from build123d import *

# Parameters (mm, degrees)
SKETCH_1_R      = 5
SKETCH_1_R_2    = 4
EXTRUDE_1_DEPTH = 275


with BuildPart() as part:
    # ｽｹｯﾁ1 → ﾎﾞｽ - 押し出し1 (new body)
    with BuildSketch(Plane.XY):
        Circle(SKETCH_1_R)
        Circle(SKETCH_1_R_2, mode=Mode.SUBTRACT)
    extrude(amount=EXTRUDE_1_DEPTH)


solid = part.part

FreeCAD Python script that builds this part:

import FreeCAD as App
import Part
import Sketcher
from FreeCAD import Vector
Q = App.Units.Quantity

doc = App.newDocument("Part")
body = doc.addObject("PartDesign::Body", "Body")

# Sketch on XY plane
sketch1 = body.newObject("Sketcher::SketchObject", "Sketch")
sketch1.AttachmentSupport = (doc.getObject("XY_Plane"), [""])
sketch1.MapMode = "FlatFace"
sketch1.addGeometry([
    Part.Circle(Vector(0, 0, 0), Vector(0, 0, 1), 5),
    Part.Circle(Vector(0, 0, 0), Vector(0, 0, 1), 4),
], False)
sketch1.addConstraint([
    Sketcher.Constraint("Coincident", 0, 3, -1, 1),
    Sketcher.Constraint("Coincident", 1, 3, -1, 1),
    Sketcher.Constraint("Diameter", 0, Q("10 mm")),
    Sketcher.Constraint("Diameter", 1, Q("8 mm")),
])
pad1 = body.newObject("PartDesign::Pad", "Pad")
pad1.Profile = sketch1
pad1.Length = 275

doc.recompute()
